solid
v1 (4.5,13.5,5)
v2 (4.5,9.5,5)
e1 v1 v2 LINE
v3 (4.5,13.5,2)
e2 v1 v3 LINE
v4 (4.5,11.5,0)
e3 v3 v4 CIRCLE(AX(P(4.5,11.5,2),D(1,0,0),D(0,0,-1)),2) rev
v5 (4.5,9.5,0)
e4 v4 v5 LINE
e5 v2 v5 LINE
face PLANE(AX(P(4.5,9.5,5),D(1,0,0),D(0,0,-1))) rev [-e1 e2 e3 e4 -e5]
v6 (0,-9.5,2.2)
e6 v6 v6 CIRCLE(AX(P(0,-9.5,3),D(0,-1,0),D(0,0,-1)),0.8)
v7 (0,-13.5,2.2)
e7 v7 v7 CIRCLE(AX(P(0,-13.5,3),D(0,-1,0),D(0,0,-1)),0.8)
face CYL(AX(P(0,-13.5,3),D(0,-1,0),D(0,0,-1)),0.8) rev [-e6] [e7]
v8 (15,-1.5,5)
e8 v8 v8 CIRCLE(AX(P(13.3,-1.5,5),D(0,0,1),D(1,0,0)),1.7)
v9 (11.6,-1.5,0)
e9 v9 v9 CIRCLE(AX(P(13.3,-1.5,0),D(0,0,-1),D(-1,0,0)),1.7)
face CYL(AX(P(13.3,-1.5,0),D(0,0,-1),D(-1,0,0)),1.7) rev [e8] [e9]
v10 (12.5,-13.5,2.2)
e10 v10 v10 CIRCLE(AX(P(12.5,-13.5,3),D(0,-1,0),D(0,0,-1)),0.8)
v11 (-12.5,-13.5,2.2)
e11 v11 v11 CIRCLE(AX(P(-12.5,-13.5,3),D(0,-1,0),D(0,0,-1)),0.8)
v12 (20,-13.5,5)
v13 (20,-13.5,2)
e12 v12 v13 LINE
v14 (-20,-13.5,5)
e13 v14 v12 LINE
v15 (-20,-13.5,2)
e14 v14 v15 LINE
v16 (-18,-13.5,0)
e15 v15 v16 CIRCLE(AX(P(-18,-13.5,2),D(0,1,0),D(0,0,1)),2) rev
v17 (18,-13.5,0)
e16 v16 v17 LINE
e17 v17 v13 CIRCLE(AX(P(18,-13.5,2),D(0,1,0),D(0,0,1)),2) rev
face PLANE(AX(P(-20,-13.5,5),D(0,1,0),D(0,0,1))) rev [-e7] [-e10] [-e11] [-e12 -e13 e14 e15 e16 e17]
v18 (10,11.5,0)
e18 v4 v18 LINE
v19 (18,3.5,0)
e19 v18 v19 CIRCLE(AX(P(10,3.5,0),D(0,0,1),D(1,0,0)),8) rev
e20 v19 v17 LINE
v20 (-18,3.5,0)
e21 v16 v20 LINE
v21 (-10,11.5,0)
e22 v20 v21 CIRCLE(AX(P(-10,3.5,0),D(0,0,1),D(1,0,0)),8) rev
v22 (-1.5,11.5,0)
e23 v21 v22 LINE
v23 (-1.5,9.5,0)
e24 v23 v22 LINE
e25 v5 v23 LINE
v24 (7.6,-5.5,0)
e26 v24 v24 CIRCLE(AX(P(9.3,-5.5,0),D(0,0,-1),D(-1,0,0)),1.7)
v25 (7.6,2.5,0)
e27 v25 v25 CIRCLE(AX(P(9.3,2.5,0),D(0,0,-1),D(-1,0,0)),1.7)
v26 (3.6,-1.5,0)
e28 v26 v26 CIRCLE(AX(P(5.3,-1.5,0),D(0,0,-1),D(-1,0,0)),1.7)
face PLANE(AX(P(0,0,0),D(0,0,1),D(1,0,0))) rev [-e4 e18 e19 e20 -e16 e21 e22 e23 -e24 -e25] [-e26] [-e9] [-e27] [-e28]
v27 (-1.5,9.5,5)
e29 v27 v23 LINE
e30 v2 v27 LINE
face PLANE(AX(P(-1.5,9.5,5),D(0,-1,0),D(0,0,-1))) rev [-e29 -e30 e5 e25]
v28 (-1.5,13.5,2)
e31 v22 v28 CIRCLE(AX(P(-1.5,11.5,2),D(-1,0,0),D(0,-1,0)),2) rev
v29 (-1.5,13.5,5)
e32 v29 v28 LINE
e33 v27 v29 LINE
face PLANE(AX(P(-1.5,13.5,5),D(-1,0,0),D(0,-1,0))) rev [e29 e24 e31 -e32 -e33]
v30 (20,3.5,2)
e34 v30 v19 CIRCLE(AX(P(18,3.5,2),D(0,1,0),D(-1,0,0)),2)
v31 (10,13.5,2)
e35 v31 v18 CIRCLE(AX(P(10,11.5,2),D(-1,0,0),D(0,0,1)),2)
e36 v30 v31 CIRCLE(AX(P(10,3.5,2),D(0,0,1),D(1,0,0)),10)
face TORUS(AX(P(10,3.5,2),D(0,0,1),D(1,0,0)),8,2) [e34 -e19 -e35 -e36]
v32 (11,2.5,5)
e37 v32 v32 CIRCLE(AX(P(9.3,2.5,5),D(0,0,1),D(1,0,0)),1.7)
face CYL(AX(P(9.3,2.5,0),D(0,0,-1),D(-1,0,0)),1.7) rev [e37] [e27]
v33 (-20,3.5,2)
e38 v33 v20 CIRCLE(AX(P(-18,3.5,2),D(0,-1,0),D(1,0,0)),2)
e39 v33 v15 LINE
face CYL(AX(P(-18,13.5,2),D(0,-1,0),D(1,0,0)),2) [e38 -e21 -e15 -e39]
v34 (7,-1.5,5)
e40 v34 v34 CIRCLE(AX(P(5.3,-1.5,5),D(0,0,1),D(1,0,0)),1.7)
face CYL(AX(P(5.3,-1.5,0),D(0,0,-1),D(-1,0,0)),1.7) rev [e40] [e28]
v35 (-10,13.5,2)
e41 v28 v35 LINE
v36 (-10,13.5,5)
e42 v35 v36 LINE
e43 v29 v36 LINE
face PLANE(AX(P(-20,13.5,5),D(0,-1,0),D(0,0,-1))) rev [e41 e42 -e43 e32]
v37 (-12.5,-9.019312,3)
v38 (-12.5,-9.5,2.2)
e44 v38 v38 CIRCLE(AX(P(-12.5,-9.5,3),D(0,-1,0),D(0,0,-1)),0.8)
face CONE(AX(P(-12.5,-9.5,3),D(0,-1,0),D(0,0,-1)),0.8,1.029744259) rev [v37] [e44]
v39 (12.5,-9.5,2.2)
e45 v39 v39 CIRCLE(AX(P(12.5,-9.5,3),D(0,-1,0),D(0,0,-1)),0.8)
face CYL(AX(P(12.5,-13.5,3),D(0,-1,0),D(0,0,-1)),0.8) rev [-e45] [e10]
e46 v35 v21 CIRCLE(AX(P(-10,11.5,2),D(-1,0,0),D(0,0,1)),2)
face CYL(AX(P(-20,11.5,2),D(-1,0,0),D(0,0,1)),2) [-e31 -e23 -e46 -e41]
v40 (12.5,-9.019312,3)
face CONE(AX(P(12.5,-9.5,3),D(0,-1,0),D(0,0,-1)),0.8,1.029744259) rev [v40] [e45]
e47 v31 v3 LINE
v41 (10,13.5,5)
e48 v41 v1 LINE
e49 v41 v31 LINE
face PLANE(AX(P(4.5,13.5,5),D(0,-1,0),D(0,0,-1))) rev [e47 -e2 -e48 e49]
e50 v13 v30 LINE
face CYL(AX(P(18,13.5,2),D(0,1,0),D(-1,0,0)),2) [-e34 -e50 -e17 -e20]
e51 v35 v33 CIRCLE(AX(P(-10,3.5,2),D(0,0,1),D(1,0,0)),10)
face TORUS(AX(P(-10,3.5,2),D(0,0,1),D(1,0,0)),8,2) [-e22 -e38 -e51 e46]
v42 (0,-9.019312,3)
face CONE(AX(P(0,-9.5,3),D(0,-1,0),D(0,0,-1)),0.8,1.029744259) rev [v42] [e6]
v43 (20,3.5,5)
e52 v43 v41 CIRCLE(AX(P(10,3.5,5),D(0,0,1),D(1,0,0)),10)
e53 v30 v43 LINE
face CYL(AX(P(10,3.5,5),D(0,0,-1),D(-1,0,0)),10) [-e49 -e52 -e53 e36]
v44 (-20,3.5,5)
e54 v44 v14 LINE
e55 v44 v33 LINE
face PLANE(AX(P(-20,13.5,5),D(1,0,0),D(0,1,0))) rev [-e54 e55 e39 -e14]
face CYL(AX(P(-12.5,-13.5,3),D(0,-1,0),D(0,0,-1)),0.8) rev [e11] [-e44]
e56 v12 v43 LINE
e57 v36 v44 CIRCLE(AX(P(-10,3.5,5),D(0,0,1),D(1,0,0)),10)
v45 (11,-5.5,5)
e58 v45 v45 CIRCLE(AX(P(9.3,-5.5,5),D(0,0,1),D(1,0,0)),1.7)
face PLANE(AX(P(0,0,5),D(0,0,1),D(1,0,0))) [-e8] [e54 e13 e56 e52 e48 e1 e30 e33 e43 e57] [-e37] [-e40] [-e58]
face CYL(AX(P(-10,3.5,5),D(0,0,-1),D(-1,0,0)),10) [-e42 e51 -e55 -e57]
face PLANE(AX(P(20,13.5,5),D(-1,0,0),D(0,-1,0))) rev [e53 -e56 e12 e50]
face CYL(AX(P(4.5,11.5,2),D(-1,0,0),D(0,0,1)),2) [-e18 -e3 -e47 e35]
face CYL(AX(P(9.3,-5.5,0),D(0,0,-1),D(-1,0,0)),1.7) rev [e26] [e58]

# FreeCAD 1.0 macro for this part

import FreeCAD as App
import Part
import Sketcher

V = App.Vector
Q = App.Units.Quantity


def edges_at(feature, points):
    """Names of the edges that pass closest to the given points."""
    edges = feature.Shape.Edges
    near = lambda p: min(range(len(edges)), key=lambda i: edges[i].distToShape(Part.Vertex(*p))[0])
    return sorted({f"Edge{near(p) + 1}" for p in points})


def add_polygon(sketch, points):
    """Adds a closed chain of lines whose ends are joined by coincident constraints."""
    first, n = sketch.GeometryCount, len(points)
    for a, b in zip(points, points[1:] + points[:1]):
        sketch.addGeometry(Part.LineSegment(App.Vector(*a, 0), App.Vector(*b, 0)), False)
    for i in range(n):
        sketch.addConstraint(Sketcher.Constraint("Coincident", first + i, 2, first + (i + 1) % n, 1))

doc = App.newDocument("Part")
params = doc.addObject("Spreadsheet::Sheet", "Params")
for row, (alias, value) in enumerate([
    ("sketch1_width", "40 mm"),
    ("sketch1_width2", "6 mm"),
    ("sketch1_height", "4 mm"),
    ("sketch1_height2", "27 mm"),
    ("sketch1_width3", "18.5 mm"),
    ("pad1_length", "5 mm"),
    ("fillet_radius", "10 mm"),
    ("fillet2_radius", "2 mm"),
    ("sketch2_diameter", "1.6 mm"),
    ("hole_diameter", "1.6 mm"),
    ("hole_depth", "4 mm"),
    ("sketch3_diameter", "3.4 mm"),
    ("hole2_diameter", "3.4 mm"),
    ("hole2_depth", "5.6 mm"),
], start=1):
    params.set(f"A{row}", alias)
    params.set(f"B{row}", "=" + value)
    params.setAlias(f"B{row}", alias)

body = doc.addObject("PartDesign::Body", "Body")

sketch1 = body.newObject("Sketcher::SketchObject", "Sketch")
sketch1.AttachmentSupport = (doc.getObject("XY_Plane"), [""])
sketch1.MapMode = "FlatFace"
add_polygon(sketch1, [(-1.5, 9.5), (-1.5, 13.5), (-20, 13.5), (-20, -13.5), (20, -13.5), (20, 13.5), (4.5, 13.5), (4.5, 9.5)])
sketch1.addConstraint([
    Sketcher.Constraint("Vertical", 0),
    Sketcher.Constraint("Horizontal", 1),
    Sketcher.Constraint("Vertical", 2),
    Sketcher.Constraint("Horizontal", 3),
    Sketcher.Constraint("Vertical", 4),
    Sketcher.Constraint("Horizontal", 5),
    Sketcher.Constraint("Vertical", 6),
    Sketcher.Constraint("Horizontal", 7),
    Sketcher.Constraint("Symmetric", 1, 2, 3, 2, -1, 1),
    Sketcher.Constraint("Horizontal", 1, 2, 4, 2),
    Sketcher.Constraint("DistanceX", 3, 1, 3, 2, Q("40 mm")),
    Sketcher.Constraint("DistanceX", 7, 2, 7, 1, Q("6 mm")),
    Sketcher.Constraint("DistanceY", 0, 1, 0, 2, Q("4 mm")),
    Sketcher.Constraint("DistanceY", 2, 2, 2, 1, Q("27 mm")),
    Sketcher.Constraint("DistanceX", 1, 2, 1, 1, Q("18.5 mm")),
])
sketch1.setExpression("Constraints[18]", "Params.sketch1_width")
sketch1.setExpression("Constraints[19]", "Params.sketch1_width2")
sketch1.setExpression("Constraints[20]", "Params.sketch1_height")
sketch1.setExpression("Constraints[21]", "Params.sketch1_height2")
sketch1.setExpression("Constraints[22]", "Params.sketch1_width3")
pad1 = body.newObject("PartDesign::Pad", "Pad")
pad1.Profile = sketch1
pad1.setExpression("Length", "Params.pad1_length")
doc.recompute()

fillet = body.newObject("PartDesign::Fillet", "Fillet")
fillet.Base = (pad1, edges_at(pad1, [(-20, 13.5, 2.5), (20, 13.5, 2.5)]))
fillet.setExpression("Radius", "Params.fillet_radius")
doc.recompute()

fillet2 = body.newObject("PartDesign::Fillet", "Fillet001")
fillet2.Base = (fillet, edges_at(fillet, [
    (20, -5, 0),
    (-20, -5, 0),
    (7.25, 13.5, 0),
    (17.071, 10.571, 0),
    (-17.071, 10.571, 0),
    (-5.75, 13.5, 0),
]))
fillet2.setExpression("Radius", "Params.fillet2_radius")

sketch2 = body.newObject("Sketcher::SketchObject", "Sketch001")
sketch2.AttachmentSupport = (doc.getObject("XZ_Plane"), [""])
sketch2.MapMode = "FlatFace"
sketch2.AttachmentOffset = App.Placement(V(0, 0, 13.5), App.Rotation())
sketch2.addGeometry([
    Part.Circle(V(-12.5, 3, 0), V(0, 0, 1), 0.8),
    Part.Circle(V(0, 3, 0), V(0, 0, 1), 0.8),
    Part.Circle(V(12.5, 3, 0), V(0, 0, 1), 0.8),
], False)
sketch2.addConstraint([
    Sketcher.Constraint("Equal", 0, 1),
    Sketcher.Constraint("Equal", 1, 2),
    Sketcher.Constraint("Symmetric", 0, 3, 2, 3, -2),
    Sketcher.Constraint("PointOnObject", 1, 3, -2),
    Sketcher.Constraint("Horizontal", 0, 3, 1, 3),
    Sketcher.Constraint("Diameter", 0, Q("1.6 mm")),
    Sketcher.Constraint("DistanceY", -1, 1, 0, 3, Q("3 mm")),
    Sketcher.Constraint("DistanceX", 0, 3, 2, 3, Q("25 mm")),
])
sketch2.setExpression("Constraints[5]", "Params.sketch2_diameter")
doc.recompute()
hole = body.newObject("PartDesign::Hole", "Hole")
hole.Profile = sketch2
hole.ThreadType = "None"
hole.setExpression("Diameter", "Params.hole_diameter")
hole.DepthType = "Dimension"
hole.setExpression("Depth", "Params.hole_depth")
hole.DrillPoint = "Angled"
hole.DrillPointAngle = 118

sketch3 = body.newObject("Sketcher::SketchObject", "Sketch002")
sketch3.AttachmentSupport = (doc.getObject("XY_Plane"), [""])
sketch3.MapMode = "FlatFace"
sketch3.addGeometry([
    Part.Circle(V(13.3, -1.5, 0), V(0, 0, 1), 1.7),
    Part.Circle(V(9.3, 2.5, 0), V(0, 0, 1), 1.7),
    Part.Circle(V(5.3, -1.5, 0), V(0, 0, 1), 1.7),
    Part.Circle(V(9.3, -5.5, 0), V(0, 0, 1), 1.7),
], False)
sketch3.addConstraint([
    Sketcher.Constraint("Equal", 0, 1),
    Sketcher.Constraint("Equal", 1, 2),
    Sketcher.Constraint("Equal", 2, 3),
    Sketcher.Constraint("Horizontal", 0, 3, 2, 3),
    Sketcher.Constraint("Vertical", 1, 3, 3, 3),
    Sketcher.Constraint("Diameter", 0, Q("3.4 mm")),
    Sketcher.Constraint("DistanceX", 1, 3, 0, 3, Q("4 mm")),
    Sketcher.Constraint("DistanceY", 0, 3, 1, 3, Q("4 mm")),
    Sketcher.Constraint("DistanceX", 2, 3, 1, 3, Q("4 mm")),
    Sketcher.Constraint("DistanceY", 3, 3, 0, 3, Q("4 mm")),
    Sketcher.Constraint("DistanceX", -1, 1, 0, 3, Q("13.3 mm")),
    Sketcher.Constraint("DistanceY", 0, 3, -1, 1, Q("1.5 mm")),
])
sketch3.setExpression("Constraints[5]", "Params.sketch3_diameter")
doc.recompute()
hole2 = body.newObject("PartDesign::Hole", "Hole001")
hole2.Profile = sketch3
hole2.ThreadType = "None"
hole2.setExpression("Diameter", "Params.hole2_diameter")
hole2.DepthType = "Dimension"
hole2.setExpression("Depth", "Params.hole2_depth")
hole2.DrillPoint = "Angled"
hole2.DrillPointAngle = 118
hole2.Reversed = True

doc.recompute()
